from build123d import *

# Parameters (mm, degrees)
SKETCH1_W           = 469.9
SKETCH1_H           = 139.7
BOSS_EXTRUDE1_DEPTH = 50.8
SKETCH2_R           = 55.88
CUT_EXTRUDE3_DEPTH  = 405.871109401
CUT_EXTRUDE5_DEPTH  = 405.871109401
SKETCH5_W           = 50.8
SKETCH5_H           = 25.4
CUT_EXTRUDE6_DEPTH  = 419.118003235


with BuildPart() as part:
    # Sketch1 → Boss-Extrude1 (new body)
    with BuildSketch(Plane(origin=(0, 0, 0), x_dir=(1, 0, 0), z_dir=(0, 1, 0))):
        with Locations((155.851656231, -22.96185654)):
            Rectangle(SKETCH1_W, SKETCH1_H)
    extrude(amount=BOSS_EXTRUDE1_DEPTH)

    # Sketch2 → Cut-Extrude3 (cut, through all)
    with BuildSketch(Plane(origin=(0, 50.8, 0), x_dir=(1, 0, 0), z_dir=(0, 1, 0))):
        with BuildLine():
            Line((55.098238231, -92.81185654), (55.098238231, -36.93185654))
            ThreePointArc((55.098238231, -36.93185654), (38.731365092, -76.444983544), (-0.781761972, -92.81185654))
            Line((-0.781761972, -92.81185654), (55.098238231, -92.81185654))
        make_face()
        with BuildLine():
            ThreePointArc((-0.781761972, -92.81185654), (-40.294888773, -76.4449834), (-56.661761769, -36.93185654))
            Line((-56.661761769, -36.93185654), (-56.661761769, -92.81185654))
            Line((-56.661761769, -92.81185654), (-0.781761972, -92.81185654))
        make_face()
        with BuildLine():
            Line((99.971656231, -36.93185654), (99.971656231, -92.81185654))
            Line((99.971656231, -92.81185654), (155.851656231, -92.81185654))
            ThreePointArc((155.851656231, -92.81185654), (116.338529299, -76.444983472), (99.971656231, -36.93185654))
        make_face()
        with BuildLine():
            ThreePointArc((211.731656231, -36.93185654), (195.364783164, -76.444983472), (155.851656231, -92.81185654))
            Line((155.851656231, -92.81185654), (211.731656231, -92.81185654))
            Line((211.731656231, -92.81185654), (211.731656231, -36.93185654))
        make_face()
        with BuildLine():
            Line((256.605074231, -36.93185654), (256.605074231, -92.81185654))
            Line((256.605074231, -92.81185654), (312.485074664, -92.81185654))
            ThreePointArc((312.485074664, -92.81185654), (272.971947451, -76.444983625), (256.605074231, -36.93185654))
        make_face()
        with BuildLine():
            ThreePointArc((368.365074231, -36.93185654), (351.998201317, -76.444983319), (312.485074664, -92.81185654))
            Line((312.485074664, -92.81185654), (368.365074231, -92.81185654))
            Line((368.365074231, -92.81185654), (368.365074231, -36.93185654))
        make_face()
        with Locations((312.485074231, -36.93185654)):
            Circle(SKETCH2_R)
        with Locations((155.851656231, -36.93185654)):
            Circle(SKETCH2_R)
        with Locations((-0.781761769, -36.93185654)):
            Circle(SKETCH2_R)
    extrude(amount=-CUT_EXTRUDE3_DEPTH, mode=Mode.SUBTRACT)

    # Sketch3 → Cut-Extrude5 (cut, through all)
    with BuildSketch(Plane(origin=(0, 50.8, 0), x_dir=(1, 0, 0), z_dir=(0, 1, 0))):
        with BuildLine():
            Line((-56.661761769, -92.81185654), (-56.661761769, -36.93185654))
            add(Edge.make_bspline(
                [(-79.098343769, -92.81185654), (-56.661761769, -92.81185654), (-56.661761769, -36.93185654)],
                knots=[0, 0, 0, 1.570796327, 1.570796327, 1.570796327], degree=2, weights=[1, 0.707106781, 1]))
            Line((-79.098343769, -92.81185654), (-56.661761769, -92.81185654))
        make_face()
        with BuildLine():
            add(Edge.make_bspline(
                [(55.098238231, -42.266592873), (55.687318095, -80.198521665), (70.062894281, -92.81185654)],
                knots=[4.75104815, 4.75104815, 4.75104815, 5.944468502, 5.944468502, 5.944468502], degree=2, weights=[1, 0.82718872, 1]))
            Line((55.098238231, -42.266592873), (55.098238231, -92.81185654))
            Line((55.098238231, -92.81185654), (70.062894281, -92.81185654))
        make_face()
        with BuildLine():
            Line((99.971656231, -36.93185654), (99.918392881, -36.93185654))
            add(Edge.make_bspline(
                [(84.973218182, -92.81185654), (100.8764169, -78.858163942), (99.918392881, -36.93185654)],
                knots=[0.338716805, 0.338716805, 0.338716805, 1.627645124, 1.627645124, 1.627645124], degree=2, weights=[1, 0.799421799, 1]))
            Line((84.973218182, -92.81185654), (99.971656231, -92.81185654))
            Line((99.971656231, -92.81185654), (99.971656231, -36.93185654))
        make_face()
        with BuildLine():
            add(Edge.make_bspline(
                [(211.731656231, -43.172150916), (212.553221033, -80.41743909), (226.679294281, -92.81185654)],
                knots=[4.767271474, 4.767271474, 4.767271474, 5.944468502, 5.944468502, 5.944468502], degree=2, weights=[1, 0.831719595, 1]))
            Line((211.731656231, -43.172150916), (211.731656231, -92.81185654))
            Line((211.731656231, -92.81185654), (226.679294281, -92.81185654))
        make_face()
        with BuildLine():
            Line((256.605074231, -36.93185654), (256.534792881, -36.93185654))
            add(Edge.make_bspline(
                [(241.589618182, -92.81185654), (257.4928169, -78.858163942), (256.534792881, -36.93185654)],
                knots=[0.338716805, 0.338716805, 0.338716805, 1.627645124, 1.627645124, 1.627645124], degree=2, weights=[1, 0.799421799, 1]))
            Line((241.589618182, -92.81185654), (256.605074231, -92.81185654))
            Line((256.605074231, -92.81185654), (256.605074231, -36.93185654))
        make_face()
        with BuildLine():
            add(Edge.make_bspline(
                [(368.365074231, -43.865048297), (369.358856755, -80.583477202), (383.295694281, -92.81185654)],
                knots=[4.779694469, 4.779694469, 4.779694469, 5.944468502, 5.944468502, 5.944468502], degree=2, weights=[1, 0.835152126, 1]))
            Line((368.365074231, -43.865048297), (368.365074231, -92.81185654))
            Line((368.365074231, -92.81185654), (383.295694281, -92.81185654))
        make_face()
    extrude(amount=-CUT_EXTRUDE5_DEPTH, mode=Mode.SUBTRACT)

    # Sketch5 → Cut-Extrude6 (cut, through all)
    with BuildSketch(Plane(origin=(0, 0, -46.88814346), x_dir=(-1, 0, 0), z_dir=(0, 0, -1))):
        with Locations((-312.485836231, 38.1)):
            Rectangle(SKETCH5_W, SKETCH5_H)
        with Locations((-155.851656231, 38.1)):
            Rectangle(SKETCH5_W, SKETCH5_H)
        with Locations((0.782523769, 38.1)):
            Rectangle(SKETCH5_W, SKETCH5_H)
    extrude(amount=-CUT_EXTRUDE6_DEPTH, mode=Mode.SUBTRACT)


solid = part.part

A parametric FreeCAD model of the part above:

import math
import FreeCAD as App
import Part
import Sketcher

V = App.Vector
Q = App.Units.Quantity

doc = App.newDocument("Part")
body = doc.addObject("PartDesign::Body", "Body")

sketch1 = doc.addObject("Sketcher::SketchObject", "Sketch")
body.addObject(sketch1)
sketch1.AttachmentSupport = (doc.XZ_Plane, [""])
sketch1.MapMode = "FlatFace"
sketch1.addGeometry([
    Part.LineSegment(V(-79.098344, -46.888143, 0), V(-79.098344, 92.811857, 0)),
    Part.LineSegment(V(-79.098344, 92.811857, 0), V(390.801656, 92.811857, 0)),
    Part.LineSegment(V(390.801656, 92.811857, 0), V(390.801656, -46.888143, 0)),
    Part.LineSegment(V(390.801656, -46.888143, 0), V(-79.098344, -46.888143, 0)),
], False)
sketch1.addConstraint([
    Sketcher.Constraint("Coincident", 0, 2, 1, 1),
    Sketcher.Constraint("Coincident", 1, 2, 2, 1),
    Sketcher.Constraint("Coincident", 2, 2, 3, 1),
    Sketcher.Constraint("Coincident", 3, 2, 0, 1),
    Sketcher.Constraint("Vertical", 0),
    Sketcher.Constraint("Horizontal", 1),
    Sketcher.Constraint("Vertical", 2),
    Sketcher.Constraint("Horizontal", 3),
    Sketcher.Constraint("DistanceX", 1, 1, 1, 2, Q("18.5 in")),
    Sketcher.Constraint("DistanceY", 0, 1, 0, 2, Q("5.5 in")),
    Sketcher.Constraint("DistanceX", 0, 2, -1, 1, 79.098344),
    Sketcher.Constraint("DistanceY", -1, 1, 0, 2, 92.811857),
])
pad1 = doc.addObject("PartDesign::Pad", "Pad")
body.addObject(pad1)
pad1.Profile = sketch1
pad1.Length = Q("2 in")
pad1.Reversed = True

sketch2 = doc.addObject("Sketcher::SketchObject", "Sketch001")
body.addObject(sketch2)
sketch2.AttachmentSupport = (doc.XZ_Plane, [""])
sketch2.MapMode = "FlatFace"
sketch2.AttachmentOffset = App.Placement(V(0, 0, -2 * 25.4), App.Rotation())
sketch2.addGeometry([
    Part.LineSegment(V(55.098238, 92.811857, 0), V(55.098238, 36.931857, 0)),
    Part.ArcOfCircle(Part.Circle(V(-0.781762, 36.931857, 0), V(0, 0, 1), 55.88), math.radians(180), math.radians(360)),
    Part.LineSegment(V(-56.661762, 36.931857, 0), V(-56.661762, 92.811857, 0)),
    Part.LineSegment(V(-56.661762, 92.811857, 0), V(55.098238, 92.811857, 0)),
    Part.LineSegment(V(99.971656, 36.931857, 0), V(99.971656, 92.811857, 0)),
    Part.LineSegment(V(99.971656, 92.811857, 0), V(211.731656, 92.811857, 0)),
    Part.LineSegment(V(211.731656, 92.811857, 0), V(211.731656, 36.931857, 0)),
    Part.ArcOfCircle(Part.Circle(V(155.851656, 36.931857, 0), V(0, 0, 1), 55.88), math.radians(180), math.radians(360)),
    Part.LineSegment(V(256.605074, 36.931857, 0), V(256.605074, 92.811857, 0)),
    Part.LineSegment(V(256.605074, 92.811857, 0), V(368.365074, 92.811857, 0)),
    Part.LineSegment(V(368.365074, 92.811857, 0), V(368.365074, 36.931857, 0)),
    Part.ArcOfCircle(Part.Circle(V(312.485074, 36.931857, 0), V(0, 0, 1), 55.88), math.radians(180), math.radians(360)),
], False)
sketch2.addConstraint([
    Sketcher.Constraint("Tangent", 0, 2, 1, 2),
    Sketcher.Constraint("Tangent", 1, 1, 2, 1),
    Sketcher.Constraint("Coincident", 2, 2, 3, 1),
    Sketcher.Constraint("Coincident", 3, 2, 0, 1),
    Sketcher.Constraint("Coincident", 4, 2, 5, 1),
    Sketcher.Constraint("Coincident", 5, 2, 6, 1),
    Sketcher.Constraint("Tangent", 6, 2, 7, 2),
    Sketcher.Constraint("Tangent", 7, 1, 4, 1),
    Sketcher.Constraint("Coincident", 8, 2, 9, 1),
    Sketcher.Constraint("Coincident", 9, 2, 10, 1),
    Sketcher.Constraint("Tangent", 10, 2, 11, 2),
    Sketcher.Constraint("Tangent", 11, 1, 8, 1),
    Sketcher.Constraint("Vertical", 0),
    Sketcher.Constraint("Vertical", 2),
    Sketcher.Constraint("Horizontal", 3),
    Sketcher.Constraint("Vertical", 4),
    Sketcher.Constraint("Horizontal", 5),
    Sketcher.Constraint("Vertical", 6),
    Sketcher.Constraint("Vertical", 8),
    Sketcher.Constraint("Horizontal", 9),
    Sketcher.Constraint("Vertical", 10),
    Sketcher.Constraint("Equal", 1, 7),
    Sketcher.Constraint("Equal", 7, 11),
    Sketcher.Constraint("Horizontal", 1, 3, 7, 3),
    Sketcher.Constraint("Horizontal", 7, 3, 11, 3),
    Sketcher.Constraint("Horizontal", 3, 2, 4, 2),
    Sketcher.Constraint("Horizontal", 5, 2, 8, 2),
    Sketcher.Constraint("Radius", 1, Q("2.2 in")),
    Sketcher.Constraint("DistanceY", 0, 2, 0, 1, Q("2.2 in")),
    Sketcher.Constraint("DistanceX", 1, 3, -1, 1, 0.781762),
    Sketcher.Constraint("DistanceX", 1, 3, 7, 3, 156.633418),
    Sketcher.Constraint("DistanceX", 7, 3, 11, 3, 156.633418),
    Sketcher.Constraint("DistanceY", -1, 1, 1, 3, 36.931857),
])
pocket1 = doc.addObject("PartDesign::Pocket", "Pocket")
body.addObject(pocket1)
pocket1.Profile = sketch2
pocket1.Type = "ThroughAll"
pocket1.Reversed = True

sketch3 = doc.addObject("Sketcher::SketchObject", "Sketch002")
body.addObject(sketch3)
sketch3.AttachmentSupport = (doc.XZ_Plane, [""])
sketch3.MapMode = "FlatFace"
sketch3.AttachmentOffset = App.Placement(V(0, 0, -2 * 25.4), App.Rotation())
sketch3.addGeometry([
    Part.LineSegment(V(-56.661762, 92.811857, 0), V(-56.661762, 36.931857, 0)),
    Part.BSplineCurve([V(-79.098344, 92.811857, 0), V(-56.661762, 92.811857, 0), V(-56.661762, 36.931857, 0)], [3, 3], [0, 1.570796327], False, 2, [1, 0.707106781, 1], False),
    Part.LineSegment(V(-79.098344, 92.811857, 0), V(-56.661762, 92.811857, 0)),
    Part.BSplineCurve([V(55.098238, 42.266593, 0), V(55.687318, 80.198522, 0), V(70.062894, 92.811857, 0)], [3, 3], [4.75104815, 5.944468502], False, 2, [1, 0.82718872, 1], False),
    Part.LineSegment(V(55.098238, 42.266593, 0), V(55.098238, 92.811857, 0)),
    Part.LineSegment(V(55.098238, 92.811857, 0), V(70.062894, 92.811857, 0)),
    Part.LineSegment(V(99.971656, 36.931857, 0), V(99.918393, 36.931857, 0)),
    Part.BSplineCurve([V(84.973218, 92.811857, 0), V(100.876417, 78.858164, 0), V(99.918393, 36.931857, 0)], [3, 3], [0.338716805, 1.627645124], False, 2, [1, 0.799421799, 1], False),
    Part.LineSegment(V(84.973218, 92.811857, 0), V(99.971656, 92.811857, 0)),
    Part.LineSegment(V(99.971656, 92.811857, 0), V(99.971656, 36.931857, 0)),
    Part.BSplineCurve([V(211.731656, 43.172151, 0), V(212.553221, 80.417439, 0), V(226.679294, 92.811857, 0)], [3, 3], [4.767271474, 5.944468502], False, 2, [1, 0.831719595, 1], False),
    Part.LineSegment(V(211.731656, 43.172151, 0), V(211.731656, 92.811857, 0)),
    Part.LineSegment(V(211.731656, 92.811857, 0), V(226.679294, 92.811857, 0)),
    Part.LineSegment(V(256.605074, 36.931857, 0), V(256.534793, 36.931857, 0)),
    Part.BSplineCurve([V(241.589618, 92.811857, 0), V(257.492817, 78.858164, 0), V(256.534793, 36.931857, 0)], [3, 3], [0.338716805, 1.627645124], False, 2, [1, 0.799421799, 1], False),
    Part.LineSegment(V(241.589618, 92.811857, 0), V(256.605074, 92.811857, 0)),
    Part.LineSegment(V(256.605074, 92.811857, 0), V(256.605074, 36.931857, 0)),
    Part.BSplineCurve([V(368.365074, 43.865048, 0), V(369.358857, 80.583477, 0), V(383.295694, 92.811857, 0)], [3, 3], [4.779694469, 5.944468502], False, 2, [1, 0.835152126, 1], False),
    Part.LineSegment(V(368.365074, 43.865048, 0), V(368.365074, 92.811857, 0)),
    Part.LineSegment(V(368.365074, 92.811857, 0), V(383.295694, 92.811857, 0)),
], False)
sketch3.addConstraint([
    Sketcher.Constraint("Block", 1),
    Sketcher.Constraint("Block", 3),
    Sketcher.Constraint("Block", 7),
    Sketcher.Constraint("Block", 10),
    Sketcher.Constraint("Block", 14),
    Sketcher.Constraint("Block", 17),
    Sketcher.Constraint("Coincident", 0, 2, 1, 2),
    Sketcher.Constraint("Coincident", 1, 1, 2, 1),
    Sketcher.Constraint("Coincident", 2, 2, 0, 1),
    Sketcher.Constraint("Coincident", 3, 1, 4, 1),
    Sketcher.Constraint("Coincident", 4, 2, 5, 1),
    Sketcher.Constraint("Coincident", 5, 2, 3, 2),
    Sketcher.Constraint("Coincident", 6, 2, 7, 2),
    Sketcher.Constraint("Coincident", 7, 1, 8, 1),
    Sketcher.Constraint("Coincident", 8, 2, 9, 1),
    Sketcher.Constraint("Coincident", 9, 2, 6, 1),
    Sketcher.Constraint("Coincident", 10, 1, 11, 1),
    Sketcher.Constraint("Coincident", 11, 2, 12, 1),
    Sketcher.Constraint("Coincident", 12, 2, 10, 2),
    Sketcher.Constraint("Coincident", 13, 2, 14, 2),
    Sketcher.Constraint("Coincident", 14, 1, 15, 1),
    Sketcher.Constraint("Coincident", 15, 2, 16, 1),
    Sketcher.Constraint("Coincident", 16, 2, 13, 1),
    Sketcher.Constraint("Coincident", 17, 1, 18, 1),
    Sketcher.Constraint("Coincident", 18, 2, 19, 1),
    Sketcher.Constraint("Coincident", 19, 2, 17, 2),
    Sketcher.Constraint("Vertical", 0),
    Sketcher.Constraint("Horizontal", 2),
    Sketcher.Constraint("Vertical", 4),
    Sketcher.Constraint("Horizontal", 5),
    Sketcher.Constraint("Horizontal", 6),
    Sketcher.Constraint("Horizontal", 8),
    Sketcher.Constraint("Vertical", 9),
    Sketcher.Constraint("Vertical", 11),
    Sketcher.Constraint("Horizontal", 12),
    Sketcher.Constraint("Horizontal", 13),
    Sketcher.Constraint("Horizontal", 15),
    Sketcher.Constraint("Vertical", 16),
    Sketcher.Constraint("Vertical", 18),
    Sketcher.Constraint("Horizontal", 19),
    Sketcher.Constraint("DistanceX", 8, 2, 11, 2, Q("4.4 in")),
    Sketcher.Constraint("DistanceX", 15, 2, 18, 2, Q("4.4 in")),
])
pocket2 = doc.addObject("PartDesign::Pocket", "Pocket001")
body.addObject(pocket2)
pocket2.Profile = sketch3
pocket2.Type = "ThroughAll"
pocket2.Reversed = True

sketch4 = doc.addObject("Sketcher::SketchObject", "Sketch003")
body.addObject(sketch4)
sketch4.AttachmentSupport = (doc.XY_Plane, [""])
sketch4.MapMode = "FlatFace"
sketch4.AttachmentOffset = App.Placement(V(0, 0, -46.888143), App.Rotation())
sketch4.addGeometry([
    Part.LineSegment(V(337.885836, 50.8, 0), V(337.885836, 25.4, 0)),
    Part.LineSegment(V(337.885836, 25.4, 0), V(287.085836, 25.4, 0)),
    Part.LineSegment(V(287.085836, 25.4, 0), V(287.085836, 50.8, 0)),
    Part.LineSegment(V(287.085836, 50.8, 0), V(337.885836, 50.8, 0)),
    Part.LineSegment(V(181.251656, 50.8, 0), V(181.251656, 25.4, 0)),
    Part.LineSegment(V(181.251656, 25.4, 0), V(130.451656, 25.4, 0)),
    Part.LineSegment(V(130.451656, 25.4, 0), V(130.451656, 50.8, 0)),
    Part.LineSegment(V(130.451656, 50.8, 0), V(181.251656, 50.8, 0)),
    Part.LineSegment(V(24.617476, 50.8, 0), V(24.617476, 25.4, 0)),
    Part.LineSegment(V(24.617476, 25.4, 0), V(-26.182524, 25.4, 0)),
    Part.LineSegment(V(-26.182524, 25.4, 0), V(-26.182524, 50.8, 0)),
    Part.LineSegment(V(-26.182524, 50.8, 0), V(24.617476, 50.8, 0)),
], False)
sketch4.addConstraint([
    Sketcher.Constraint("Coincident", 0, 2, 1, 1),
    Sketcher.Constraint("Coincident", 1, 2, 2, 1),
    Sketcher.Constraint("Coincident", 2, 2, 3, 1),
    Sketcher.Constraint("Coincident", 3, 2, 0, 1),
    Sketcher.Constraint("Coincident", 4, 2, 5, 1),
    Sketcher.Constraint("Coincident", 5, 2, 6, 1),
    Sketcher.Constraint("Coincident", 6, 2, 7, 1),
    Sketcher.Constraint("Coincident", 7, 2, 4, 1),
    Sketcher.Constraint("Coincident", 8, 2, 9, 1),
    Sketcher.Constraint("Coincident", 9, 2, 10, 1),
    Sketcher.Constraint("Coincident", 10, 2, 11, 1),
    Sketcher.Constraint("Coincident", 11, 2, 8, 1),
    Sketcher.Constraint("Vertical", 0),
    Sketcher.Constraint("Horizontal", 1),
    Sketcher.Constraint("Vertical", 2),
    Sketcher.Constraint("Horizontal", 3),
    Sketcher.Constraint("Vertical", 4),
    Sketcher.Constraint("Horizontal", 5),
    Sketcher.Constraint("Vertical", 6),
    Sketcher.Constraint("Horizontal", 7),
    Sketcher.Constraint("Vertical", 8),
    Sketcher.Constraint("Horizontal", 9),
    Sketcher.Constraint("Vertical", 10),
    Sketcher.Constraint("Horizontal", 11),
    Sketcher.Constraint("Horizontal", 1, 2, 4, 2),
    Sketcher.Constraint("Horizontal", 3, 2, 6, 2),
    Sketcher.Constraint("Horizontal", 5, 2, 8, 2),
    Sketcher.Constraint("Horizontal", 7, 2, 10, 2),
    Sketcher.Constraint("Equal", 3, 5),
    Sketcher.Constraint("Equal", 7, 9),
    Sketcher.Constraint("DistanceX", 1, 2, 1, 1, Q("2 in")),
    Sketcher.Constraint("DistanceY", 0, 2, 0, 1, Q("1 in")),
    Sketcher.Constraint("DistanceY", -1, 1, 0, 2, Q("1 in")),
    Sketcher.Constraint("DistanceX", 4, 2, 1, 2, Q("4.1667 in")),
    Sketcher.Constraint("DistanceX", 8, 2, 5, 2, Q("4.1667 in")),
    Sketcher.Constraint("DistanceX", -1, 1, 0, 2, 337.885836),
])
pocket3 = doc.addObject("PartDesign::Pocket", "Pocket002")
body.addObject(pocket3)
pocket3.Profile = sketch4
pocket3.Type = "ThroughAll"
pocket3.Reversed = True

doc.recompute()
